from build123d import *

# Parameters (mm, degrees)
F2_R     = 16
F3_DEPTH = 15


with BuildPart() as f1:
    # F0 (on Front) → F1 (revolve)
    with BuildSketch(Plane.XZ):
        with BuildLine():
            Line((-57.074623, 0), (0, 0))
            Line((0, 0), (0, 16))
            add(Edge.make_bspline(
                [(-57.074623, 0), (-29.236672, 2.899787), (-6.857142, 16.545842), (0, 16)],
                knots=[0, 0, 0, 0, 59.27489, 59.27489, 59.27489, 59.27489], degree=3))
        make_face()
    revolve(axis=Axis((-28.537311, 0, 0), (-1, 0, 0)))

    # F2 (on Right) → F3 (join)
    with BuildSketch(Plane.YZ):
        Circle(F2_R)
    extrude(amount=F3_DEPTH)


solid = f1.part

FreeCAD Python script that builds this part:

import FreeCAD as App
import Part
import Sketcher

doc = App.newDocument("Part")
params = doc.addObject("Spreadsheet::Sheet", "Params")
for row, (alias, value) in enumerate([
    ("revolution_angle", "360 deg"),
    ("sketch2_diameter", "32 mm"),
    ("pad1_length", "15 mm"),
], start=1):
    params.set(f"A{row}", alias)
    params.set(f"B{row}", "=" + value)
    params.setAlias(f"B{row}", alias)

body = doc.addObject("PartDesign::Body", "Body")

# Sketch on XZ plane
sketch1 = body.newObject("Sketcher::SketchObject", "Sketch")
sketch1.AttachmentSupport = (doc.getObject("XZ_Plane"), [""])
sketch1.MapMode = "FlatFace"
sketch1.addGeometry([
    Part.LineSegment(App.Vector(-57.074623, 0, 0), App.Vector(0, 0, 0)),
    Part.LineSegment(App.Vector(0, 0, 0), App.Vector(0, 16, 0)),
    Part.BSplineCurve([App.Vector(-57.074623, 0, 0), App.Vector(-29.236672, 2.899787, 0), App.Vector(-6.857142, 16.545842, 0), App.Vector(0, 16, 0)], [4, 4], [0, 59.27489], False, 3, [1, 1, 1, 1], False),
], False)
sketch1.addConstraint([
    Sketcher.Constraint("Block", 2),
    Sketcher.Constraint("Coincident", 0, 2, 1, 1),
    Sketcher.Constraint("Coincident", 1, 2, 2, 2),
    Sketcher.Constraint("Coincident", 2, 1, 0, 1),
    Sketcher.Constraint("Horizontal", 0),
    Sketcher.Constraint("Vertical", 1),
])
revolution = body.newObject("PartDesign::Revolution", "Revolution")
revolution.Profile = sketch1
revolution.ReferenceAxis = (sketch1, ["H_Axis"])
revolution.setExpression("Angle", "Params.revolution_angle")

# Sketch on YZ plane
sketch2 = body.newObject("Sketcher::SketchObject", "Sketch001")
sketch2.AttachmentSupport = (doc.getObject("YZ_Plane"), [""])
sketch2.MapMode = "FlatFace"
sketch2.addGeometry(Part.Circle(App.Vector(0, 0, 0), App.Vector(0, 0, 1), 16), False)
sketch2.addConstraint([
    Sketcher.Constraint("Coincident", 0, 3, -1, 1),
    Sketcher.Constraint("Diameter", 0, 32.0),
])
sketch2.setExpression("Constraints[1]", "Params.sketch2_diameter")
pad1 = body.newObject("PartDesign::Pad", "Pad")
pad1.Profile = sketch2
pad1.setExpression("Length", "Params.pad1_length")

doc.recompute()
